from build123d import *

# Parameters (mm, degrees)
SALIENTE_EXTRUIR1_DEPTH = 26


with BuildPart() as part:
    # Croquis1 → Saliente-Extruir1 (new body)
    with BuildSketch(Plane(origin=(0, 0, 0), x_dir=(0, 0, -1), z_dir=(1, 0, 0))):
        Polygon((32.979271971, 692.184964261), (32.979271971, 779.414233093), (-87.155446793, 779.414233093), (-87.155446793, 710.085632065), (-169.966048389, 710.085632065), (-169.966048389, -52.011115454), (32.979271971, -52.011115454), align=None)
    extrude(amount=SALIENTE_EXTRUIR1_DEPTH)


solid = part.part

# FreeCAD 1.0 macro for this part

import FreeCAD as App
import Part
import Sketcher
from FreeCAD import Vector

doc = App.newDocument("Part")
body = doc.addObject("PartDesign::Body", "Body")

# Sketch on YZ plane
sketch1 = body.newObject("Sketcher::SketchObject", "Sketch")
sketch1.AttachmentSupport = (doc.getObject("YZ_Plane"), [""])
sketch1.MapMode = "FlatFace"
sketch1.addGeometry(Part.LineSegment(Vector(779, -33, 0), Vector(779, 87, 0)), False)
sketch1.addGeometry(Part.LineSegment(Vector(779, 87, 0), Vector(710, 87, 0)), False)
sketch1.addGeometry(Part.LineSegment(Vector(710, 87, 0), Vector(710, 170, 0)), False)
sketch1.addGeometry(Part.LineSegment(Vector(710, 170, 0), Vector(-52, 170, 0)), False)
sketch1.addGeometry(Part.LineSegment(Vector(-52, 170, 0), Vector(-52, -33, 0)), False)
sketch1.addGeometry(Part.LineSegment(Vector(-52, -33, 0), Vector(779, -33, 0)), False)
sketch1.addConstraint(Sketcher.Constraint("Coincident", 0, 2, 1, 1))
sketch1.addConstraint(Sketcher.Constraint("Coincident", 1, 2, 2, 1))
sketch1.addConstraint(Sketcher.Constraint("Coincident", 2, 2, 3, 1))
sketch1.addConstraint(Sketcher.Constraint("Coincident", 3, 2, 4, 1))
sketch1.addConstraint(Sketcher.Constraint("Coincident", 4, 2, 5, 1))
sketch1.addConstraint(Sketcher.Constraint("Coincident", 5, 2, 0, 1))
sketch1.addConstraint(Sketcher.Constraint("Vertical", 0))
sketch1.addConstraint(Sketcher.Constraint("Horizontal", 1))
sketch1.addConstraint(Sketcher.Constraint("Vertical", 2))
sketch1.addConstraint(Sketcher.Constraint("Horizontal", 3))
sketch1.addConstraint(Sketcher.Constraint("Vertical", 4))
sketch1.addConstraint(Sketcher.Constraint("Horizontal", 5))
sketch1.addConstraint(Sketcher.Constraint("DistanceX", 1, 2, 1, 1, 69.328601))
sketch1.addConstraint(Sketcher.Constraint("DistanceY", 2, 1, 2, 2, 82.810602))
sketch1.addConstraint(Sketcher.Constraint("DistanceX", 5, 1, 5, 2, 831.425349))
sketch1.addConstraint(Sketcher.Constraint("DistanceY", 0, 1, 0, 2, 120.134719))
sketch1.addConstraint(Sketcher.Constraint("DistanceY", -1, 1, 2, 2, 169.966048))
sketch1.addConstraint(Sketcher.Constraint("DistanceX", -1, 1, 0, 2, 779.414233))
pad1 = body.newObject("PartDesign::Pad", "Pad")
pad1.Profile = sketch1
pad1.Length = 26

doc.recompute()
